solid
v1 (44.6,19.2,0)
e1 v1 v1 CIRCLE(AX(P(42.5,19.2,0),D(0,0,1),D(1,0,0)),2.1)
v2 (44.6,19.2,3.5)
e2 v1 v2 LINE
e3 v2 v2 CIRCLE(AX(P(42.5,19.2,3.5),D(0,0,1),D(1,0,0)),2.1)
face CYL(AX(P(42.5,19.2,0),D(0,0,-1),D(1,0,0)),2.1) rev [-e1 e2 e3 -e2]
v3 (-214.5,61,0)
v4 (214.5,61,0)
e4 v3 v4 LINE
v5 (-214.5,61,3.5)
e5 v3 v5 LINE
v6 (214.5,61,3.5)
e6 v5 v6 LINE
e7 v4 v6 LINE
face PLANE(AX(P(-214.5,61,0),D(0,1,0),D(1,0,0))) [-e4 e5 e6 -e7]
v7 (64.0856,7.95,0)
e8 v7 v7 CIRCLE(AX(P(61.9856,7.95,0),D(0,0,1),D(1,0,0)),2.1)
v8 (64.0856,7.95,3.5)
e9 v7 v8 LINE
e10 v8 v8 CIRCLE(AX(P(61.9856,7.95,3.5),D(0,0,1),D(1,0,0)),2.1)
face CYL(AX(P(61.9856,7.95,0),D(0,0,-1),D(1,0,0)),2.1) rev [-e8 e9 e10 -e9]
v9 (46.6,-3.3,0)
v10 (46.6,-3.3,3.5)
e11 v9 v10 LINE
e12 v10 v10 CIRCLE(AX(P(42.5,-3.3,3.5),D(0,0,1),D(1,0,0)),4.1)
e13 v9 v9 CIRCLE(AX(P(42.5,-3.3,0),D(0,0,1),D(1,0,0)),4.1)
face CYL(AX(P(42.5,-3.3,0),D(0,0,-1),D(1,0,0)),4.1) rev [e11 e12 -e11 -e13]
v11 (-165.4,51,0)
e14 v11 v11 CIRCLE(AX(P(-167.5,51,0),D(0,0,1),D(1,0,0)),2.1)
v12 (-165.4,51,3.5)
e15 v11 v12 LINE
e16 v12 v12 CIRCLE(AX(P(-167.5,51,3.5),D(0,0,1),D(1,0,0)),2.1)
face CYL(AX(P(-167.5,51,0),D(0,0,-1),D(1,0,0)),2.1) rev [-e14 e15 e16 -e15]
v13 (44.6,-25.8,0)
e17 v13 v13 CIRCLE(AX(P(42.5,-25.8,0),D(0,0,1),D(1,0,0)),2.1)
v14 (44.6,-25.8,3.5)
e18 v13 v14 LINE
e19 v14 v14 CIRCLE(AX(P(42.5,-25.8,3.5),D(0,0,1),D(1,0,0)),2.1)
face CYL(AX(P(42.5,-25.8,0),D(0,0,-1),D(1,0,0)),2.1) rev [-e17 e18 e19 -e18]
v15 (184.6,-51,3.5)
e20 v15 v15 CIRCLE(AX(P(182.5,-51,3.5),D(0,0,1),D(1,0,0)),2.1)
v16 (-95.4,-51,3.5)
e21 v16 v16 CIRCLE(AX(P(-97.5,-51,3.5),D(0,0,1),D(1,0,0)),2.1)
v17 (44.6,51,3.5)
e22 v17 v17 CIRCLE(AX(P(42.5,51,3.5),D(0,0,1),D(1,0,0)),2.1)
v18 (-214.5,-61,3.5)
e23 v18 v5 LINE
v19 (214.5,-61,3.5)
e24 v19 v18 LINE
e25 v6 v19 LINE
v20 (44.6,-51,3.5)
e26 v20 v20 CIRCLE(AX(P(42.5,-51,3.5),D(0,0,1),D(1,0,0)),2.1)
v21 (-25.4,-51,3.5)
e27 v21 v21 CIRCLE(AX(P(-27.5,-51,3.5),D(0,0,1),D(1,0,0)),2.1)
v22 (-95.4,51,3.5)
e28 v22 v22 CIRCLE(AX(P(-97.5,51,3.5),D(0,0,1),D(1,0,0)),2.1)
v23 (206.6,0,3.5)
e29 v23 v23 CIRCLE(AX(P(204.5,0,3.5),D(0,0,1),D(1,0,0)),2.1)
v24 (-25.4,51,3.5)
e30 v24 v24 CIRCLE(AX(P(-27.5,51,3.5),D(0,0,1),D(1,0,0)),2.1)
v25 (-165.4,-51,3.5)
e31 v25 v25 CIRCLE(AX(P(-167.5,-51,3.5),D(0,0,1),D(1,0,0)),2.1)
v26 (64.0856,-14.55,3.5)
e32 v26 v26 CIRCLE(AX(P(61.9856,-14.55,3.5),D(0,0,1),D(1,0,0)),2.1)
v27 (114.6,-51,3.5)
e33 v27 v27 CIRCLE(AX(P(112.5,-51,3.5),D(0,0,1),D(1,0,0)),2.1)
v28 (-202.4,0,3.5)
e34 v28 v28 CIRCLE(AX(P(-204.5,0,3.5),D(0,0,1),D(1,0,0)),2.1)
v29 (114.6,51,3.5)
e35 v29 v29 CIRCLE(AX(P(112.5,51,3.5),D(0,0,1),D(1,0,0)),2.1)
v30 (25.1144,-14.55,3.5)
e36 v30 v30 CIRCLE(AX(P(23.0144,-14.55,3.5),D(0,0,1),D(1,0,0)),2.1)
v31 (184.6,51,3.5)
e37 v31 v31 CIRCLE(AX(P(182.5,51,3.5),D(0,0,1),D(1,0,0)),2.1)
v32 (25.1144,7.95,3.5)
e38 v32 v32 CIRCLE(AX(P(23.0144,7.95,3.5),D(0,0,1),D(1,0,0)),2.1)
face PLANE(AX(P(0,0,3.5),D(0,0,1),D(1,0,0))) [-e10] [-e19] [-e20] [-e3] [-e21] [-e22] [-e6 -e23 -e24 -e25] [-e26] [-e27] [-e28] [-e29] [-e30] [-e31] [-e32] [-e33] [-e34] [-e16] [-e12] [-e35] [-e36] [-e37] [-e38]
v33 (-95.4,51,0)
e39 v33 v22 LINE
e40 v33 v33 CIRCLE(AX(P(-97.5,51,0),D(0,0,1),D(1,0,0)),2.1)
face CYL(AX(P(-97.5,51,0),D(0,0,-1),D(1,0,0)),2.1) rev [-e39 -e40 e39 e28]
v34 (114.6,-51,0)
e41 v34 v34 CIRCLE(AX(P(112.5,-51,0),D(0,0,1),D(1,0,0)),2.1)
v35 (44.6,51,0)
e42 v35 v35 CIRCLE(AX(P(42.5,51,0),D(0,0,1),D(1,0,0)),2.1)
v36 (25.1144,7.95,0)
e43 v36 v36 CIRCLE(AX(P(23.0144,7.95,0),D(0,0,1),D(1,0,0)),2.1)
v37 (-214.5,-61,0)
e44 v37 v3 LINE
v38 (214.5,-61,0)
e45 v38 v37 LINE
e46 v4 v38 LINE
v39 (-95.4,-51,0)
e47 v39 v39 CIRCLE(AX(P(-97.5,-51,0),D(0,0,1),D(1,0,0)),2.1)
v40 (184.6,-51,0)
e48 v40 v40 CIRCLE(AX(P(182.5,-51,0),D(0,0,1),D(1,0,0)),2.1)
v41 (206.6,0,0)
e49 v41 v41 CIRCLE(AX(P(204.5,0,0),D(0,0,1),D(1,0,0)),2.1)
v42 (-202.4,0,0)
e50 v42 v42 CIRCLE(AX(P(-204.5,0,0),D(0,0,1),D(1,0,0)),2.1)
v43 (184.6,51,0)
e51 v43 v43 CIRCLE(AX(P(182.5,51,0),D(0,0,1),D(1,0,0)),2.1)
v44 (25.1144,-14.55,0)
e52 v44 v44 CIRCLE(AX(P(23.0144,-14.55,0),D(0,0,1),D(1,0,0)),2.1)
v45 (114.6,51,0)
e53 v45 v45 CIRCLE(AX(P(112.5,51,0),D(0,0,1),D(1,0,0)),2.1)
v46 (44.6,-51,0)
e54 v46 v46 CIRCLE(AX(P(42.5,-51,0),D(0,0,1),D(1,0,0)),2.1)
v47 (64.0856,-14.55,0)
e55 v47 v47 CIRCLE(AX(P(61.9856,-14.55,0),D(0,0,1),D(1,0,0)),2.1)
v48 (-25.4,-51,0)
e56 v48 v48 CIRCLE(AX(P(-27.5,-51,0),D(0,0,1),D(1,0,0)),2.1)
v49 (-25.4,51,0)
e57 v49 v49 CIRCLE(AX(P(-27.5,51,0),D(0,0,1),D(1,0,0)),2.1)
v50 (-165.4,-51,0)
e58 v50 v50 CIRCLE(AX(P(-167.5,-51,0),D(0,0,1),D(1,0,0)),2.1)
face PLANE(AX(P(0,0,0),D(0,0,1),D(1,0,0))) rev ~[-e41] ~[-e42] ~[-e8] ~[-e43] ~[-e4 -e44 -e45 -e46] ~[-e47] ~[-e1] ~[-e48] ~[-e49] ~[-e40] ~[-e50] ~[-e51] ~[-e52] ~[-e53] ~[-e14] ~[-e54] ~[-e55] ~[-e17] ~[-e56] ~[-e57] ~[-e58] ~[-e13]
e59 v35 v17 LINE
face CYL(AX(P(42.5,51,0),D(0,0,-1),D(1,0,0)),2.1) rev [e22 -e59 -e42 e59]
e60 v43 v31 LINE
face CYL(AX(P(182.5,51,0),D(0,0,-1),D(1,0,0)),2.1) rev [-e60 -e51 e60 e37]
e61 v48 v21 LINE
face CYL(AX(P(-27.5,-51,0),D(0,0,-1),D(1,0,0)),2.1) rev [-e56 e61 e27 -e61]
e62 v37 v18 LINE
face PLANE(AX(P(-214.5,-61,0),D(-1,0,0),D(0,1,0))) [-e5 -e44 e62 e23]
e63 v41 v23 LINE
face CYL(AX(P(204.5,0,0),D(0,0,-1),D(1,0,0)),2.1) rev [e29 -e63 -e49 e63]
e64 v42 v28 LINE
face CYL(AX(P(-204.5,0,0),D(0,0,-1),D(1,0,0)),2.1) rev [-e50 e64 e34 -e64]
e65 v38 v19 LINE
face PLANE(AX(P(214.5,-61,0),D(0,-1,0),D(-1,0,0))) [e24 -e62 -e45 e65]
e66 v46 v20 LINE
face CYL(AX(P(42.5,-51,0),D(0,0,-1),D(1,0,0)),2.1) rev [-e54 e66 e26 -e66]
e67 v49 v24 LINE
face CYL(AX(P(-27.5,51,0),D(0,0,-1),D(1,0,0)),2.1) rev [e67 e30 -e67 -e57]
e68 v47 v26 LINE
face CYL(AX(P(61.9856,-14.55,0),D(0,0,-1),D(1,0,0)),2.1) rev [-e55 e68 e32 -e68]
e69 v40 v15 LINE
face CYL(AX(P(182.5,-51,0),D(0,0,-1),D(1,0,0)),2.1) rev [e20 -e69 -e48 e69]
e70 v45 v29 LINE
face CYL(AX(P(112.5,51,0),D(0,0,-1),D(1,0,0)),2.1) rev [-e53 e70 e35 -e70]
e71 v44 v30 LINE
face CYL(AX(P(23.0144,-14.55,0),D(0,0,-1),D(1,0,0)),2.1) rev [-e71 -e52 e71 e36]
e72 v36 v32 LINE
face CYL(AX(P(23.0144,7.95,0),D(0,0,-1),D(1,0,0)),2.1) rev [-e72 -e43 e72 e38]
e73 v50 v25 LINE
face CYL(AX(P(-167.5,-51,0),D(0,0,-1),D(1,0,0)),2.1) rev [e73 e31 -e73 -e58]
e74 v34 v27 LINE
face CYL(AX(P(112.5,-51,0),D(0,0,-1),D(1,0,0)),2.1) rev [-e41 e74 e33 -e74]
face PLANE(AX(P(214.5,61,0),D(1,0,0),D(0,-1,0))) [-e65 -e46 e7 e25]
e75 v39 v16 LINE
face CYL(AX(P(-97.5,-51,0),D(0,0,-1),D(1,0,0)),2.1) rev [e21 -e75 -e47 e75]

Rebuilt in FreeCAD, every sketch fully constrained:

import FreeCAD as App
import Part
import Sketcher

V = App.Vector
Q = App.Units.Quantity

doc = App.newDocument("Part")
body = doc.addObject("PartDesign::Body", "Body")

# Sketch on XY plane
sketch1 = body.newObject("Sketcher::SketchObject", "Sketch")
sketch1.AttachmentSupport = (doc.getObject("XY_Plane"), [""])
sketch1.MapMode = "FlatFace"
sketch1.addGeometry([
    Part.LineSegment(V(-214.5, 61, 0), V(-214.5, -61, 0)),  # 0
    Part.LineSegment(V(-214.5, -61, 0), V(214.5, -61, 0)),  # 1
    Part.LineSegment(V(214.5, -61, 0), V(214.5, 61, 0)),  # 2
    Part.LineSegment(V(214.5, 61, 0), V(-214.5, 61, 0)),  # 3
    Part.Circle(V(-167.5, -51, 0), V(0, 0, 1), 2.1),  # 4
    Part.Circle(V(-97.5, -51, 0), V(0, 0, 1), 2.1),  # 5
    Part.Circle(V(-27.5, -51, 0), V(0, 0, 1), 2.1),  # 6
    Part.Circle(V(42.5, -51, 0), V(0, 0, 1), 2.1),  # 7
    Part.Circle(V(112.5, -51, 0), V(0, 0, 1), 2.1),  # 8
    Part.Circle(V(182.5, -51, 0), V(0, 0, 1), 2.1),  # 9
    Part.Circle(V(42.5, -25.8, 0), V(0, 0, 1), 2.1),  # 10
    Part.Circle(V(23, -14.6, 0), V(0, 0, 1), 2.1),  # 11
    Part.Circle(V(42.5, -3.3, 0), V(0, 0, 1), 4.1),  # 12
    Part.Circle(V(62, -14.6, 0), V(0, 0, 1), 2.1),  # 13
    Part.Circle(V(-204.5, 0, 0), V(0, 0, 1), 2.1),  # 14
    Part.Circle(V(-167.5, 51, 0), V(0, 0, 1), 2.1),  # 15
    Part.Circle(V(-97.5, 51, 0), V(0, 0, 1), 2.1),  # 16
    Part.Circle(V(-27.5, 51, 0), V(0, 0, 1), 2.1),  # 17
    Part.Circle(V(23, 8, 0), V(0, 0, 1), 2.1),  # 18
    Part.Circle(V(62, 8, 0), V(0, 0, 1), 2.1),  # 19
    Part.Circle(V(42.5, 19.2, 0), V(0, 0, 1), 2.1),  # 20
    Part.Circle(V(204.5, 0, 0), V(0, 0, 1), 2.1),  # 21
    Part.Circle(V(42.5, 51, 0), V(0, 0, 1), 2.1),  # 22
    Part.Circle(V(112.5, 51, 0), V(0, 0, 1), 2.1),  # 23
    Part.Circle(V(182.5, 51, 0), V(0, 0, 1), 2.1),  # 24
], False)
sketch1.addConstraint([
    Sketcher.Constraint("Coincident", 0, 2, 1, 1),
    Sketcher.Constraint("Coincident", 1, 2, 2, 1),
    Sketcher.Constraint("Coincident", 2, 2, 3, 1),
    Sketcher.Constraint("Coincident", 3, 2, 0, 1),
    Sketcher.Constraint("Vertical", 0),
    Sketcher.Constraint("Horizontal", 1),
    Sketcher.Constraint("Vertical", 2),
    Sketcher.Constraint("Horizontal", 3),
    Sketcher.Constraint("Equal", 4, 5),
    Sketcher.Constraint("Equal", 5, 6),
    Sketcher.Constraint("Equal", 6, 7),
    Sketcher.Constraint("Equal", 7, 8),
    Sketcher.Constraint("Equal", 8, 9),
    Sketcher.Constraint("Equal", 9, 10),
    Sketcher.Constraint("Equal", 10, 11),
    Sketcher.Constraint("Equal", 11, 13),
    Sketcher.Constraint("Equal", 13, 14),
    Sketcher.Constraint("Equal", 14, 15),
    Sketcher.Constraint("Equal", 15, 16),
    Sketcher.Constraint("Equal", 16, 17),
    Sketcher.Constraint("Equal", 17, 18),
    Sketcher.Constraint("Equal", 18, 19),
    Sketcher.Constraint("Equal", 19, 20),
    Sketcher.Constraint("Equal", 20, 21),
    Sketcher.Constraint("Equal", 21, 22),
    Sketcher.Constraint("Equal", 22, 23),
    Sketcher.Constraint("Equal", 23, 24),
    Sketcher.Constraint("Symmetric", 14, 3, 21, 3, -1, 1),
    Sketcher.Constraint("Symmetric", 0, 2, 2, 2, -1, 1),
    Sketcher.Constraint("Symmetric", 4, 3, 15, 3, -1),
    Sketcher.Constraint("Symmetric", 5, 3, 16, 3, -1),
    Sketcher.Constraint("Symmetric", 6, 3, 17, 3, -1),
    Sketcher.Constraint("Symmetric", 7, 3, 22, 3, -1),
    Sketcher.Constraint("Symmetric", 8, 3, 23, 3, -1),
    Sketcher.Constraint("Symmetric", 9, 3, 24, 3, -1),
    Sketcher.Constraint("PointOnObject", 14, 3, -1),
    Sketcher.Constraint("Horizontal", 4, 3, 5, 3),
    Sketcher.Constraint("Horizontal", 5, 3, 6, 3),
    Sketcher.Constraint("Horizontal", 6, 3, 7, 3),
    Sketcher.Constraint("Horizontal", 7, 3, 8, 3),
    Sketcher.Constraint("Horizontal", 8, 3, 9, 3),
    Sketcher.Constraint("Horizontal", 11, 3, 13, 3),
    Sketcher.Constraint("Horizontal", 18, 3, 19, 3),
    Sketcher.Constraint("Vertical", 7, 3, 10, 3),
    Sketcher.Constraint("Vertical", 10, 3, 12, 3),
    Sketcher.Constraint("Vertical", 11, 3, 18, 3),
    Sketcher.Constraint("Vertical", 13, 3, 19, 3),
    Sketcher.Constraint("Vertical", 12, 3, 20, 3),
    Sketcher.Constraint("Diameter", 4, Q("4.2 mm")),
    Sketcher.Constraint("Diameter", 12, Q("8.2 mm")),
    Sketcher.Constraint("DistanceX", 1, 1, 1, 2, Q("429 mm")),
    Sketcher.Constraint("DistanceY", 0, 2, 0, 1, Q("122 mm")),
    Sketcher.Constraint("DistanceX", 4, 3, 5, 3, Q("70 mm")),
    Sketcher.Constraint("DistanceX", 5, 3, 6, 3, Q("70 mm")),
    Sketcher.Constraint("DistanceX", 6, 3, 7, 3, Q("70 mm")),
    Sketcher.Constraint("DistanceX", 7, 3, 8, 3, Q("70 mm")),
    Sketcher.Constraint("DistanceX", 8, 3, 9, 3, Q("70 mm")),
    Sketcher.Constraint("DistanceY", 0, 2, 4, 3, Q("10 mm")),
    Sketcher.Constraint("DistanceX", 0, 2, 14, 3, Q("10 mm")),
    Sketcher.Constraint("DistanceY", 12, 3, -1, 1, Q("3.3 mm")),
    Sketcher.Constraint("DistanceX", 14, 3, 4, 3, Q("37 mm")),
    Sketcher.Constraint("DistanceY", 10, 3, -1, 1, Q("25.8 mm")),
    Sketcher.Constraint("DistanceY", -1, 1, 20, 3, Q("19.2 mm")),
    Sketcher.Constraint("DistanceY", 11, 3, 18, 3, Q("22.5 mm")),
    Sketcher.Constraint("DistanceY", 11, 3, -1, 1, Q("14.55 mm")),
    Sketcher.Constraint("DistanceX", -1, 1, 11, 3, Q("23.0144 mm")),
    Sketcher.Constraint("DistanceX", -1, 1, 13, 3, Q("61.9856 mm")),
])
pad1 = body.newObject("PartDesign::Pad", "Pad")
pad1.Profile = sketch1
pad1.Length = 3.5

doc.recompute()
